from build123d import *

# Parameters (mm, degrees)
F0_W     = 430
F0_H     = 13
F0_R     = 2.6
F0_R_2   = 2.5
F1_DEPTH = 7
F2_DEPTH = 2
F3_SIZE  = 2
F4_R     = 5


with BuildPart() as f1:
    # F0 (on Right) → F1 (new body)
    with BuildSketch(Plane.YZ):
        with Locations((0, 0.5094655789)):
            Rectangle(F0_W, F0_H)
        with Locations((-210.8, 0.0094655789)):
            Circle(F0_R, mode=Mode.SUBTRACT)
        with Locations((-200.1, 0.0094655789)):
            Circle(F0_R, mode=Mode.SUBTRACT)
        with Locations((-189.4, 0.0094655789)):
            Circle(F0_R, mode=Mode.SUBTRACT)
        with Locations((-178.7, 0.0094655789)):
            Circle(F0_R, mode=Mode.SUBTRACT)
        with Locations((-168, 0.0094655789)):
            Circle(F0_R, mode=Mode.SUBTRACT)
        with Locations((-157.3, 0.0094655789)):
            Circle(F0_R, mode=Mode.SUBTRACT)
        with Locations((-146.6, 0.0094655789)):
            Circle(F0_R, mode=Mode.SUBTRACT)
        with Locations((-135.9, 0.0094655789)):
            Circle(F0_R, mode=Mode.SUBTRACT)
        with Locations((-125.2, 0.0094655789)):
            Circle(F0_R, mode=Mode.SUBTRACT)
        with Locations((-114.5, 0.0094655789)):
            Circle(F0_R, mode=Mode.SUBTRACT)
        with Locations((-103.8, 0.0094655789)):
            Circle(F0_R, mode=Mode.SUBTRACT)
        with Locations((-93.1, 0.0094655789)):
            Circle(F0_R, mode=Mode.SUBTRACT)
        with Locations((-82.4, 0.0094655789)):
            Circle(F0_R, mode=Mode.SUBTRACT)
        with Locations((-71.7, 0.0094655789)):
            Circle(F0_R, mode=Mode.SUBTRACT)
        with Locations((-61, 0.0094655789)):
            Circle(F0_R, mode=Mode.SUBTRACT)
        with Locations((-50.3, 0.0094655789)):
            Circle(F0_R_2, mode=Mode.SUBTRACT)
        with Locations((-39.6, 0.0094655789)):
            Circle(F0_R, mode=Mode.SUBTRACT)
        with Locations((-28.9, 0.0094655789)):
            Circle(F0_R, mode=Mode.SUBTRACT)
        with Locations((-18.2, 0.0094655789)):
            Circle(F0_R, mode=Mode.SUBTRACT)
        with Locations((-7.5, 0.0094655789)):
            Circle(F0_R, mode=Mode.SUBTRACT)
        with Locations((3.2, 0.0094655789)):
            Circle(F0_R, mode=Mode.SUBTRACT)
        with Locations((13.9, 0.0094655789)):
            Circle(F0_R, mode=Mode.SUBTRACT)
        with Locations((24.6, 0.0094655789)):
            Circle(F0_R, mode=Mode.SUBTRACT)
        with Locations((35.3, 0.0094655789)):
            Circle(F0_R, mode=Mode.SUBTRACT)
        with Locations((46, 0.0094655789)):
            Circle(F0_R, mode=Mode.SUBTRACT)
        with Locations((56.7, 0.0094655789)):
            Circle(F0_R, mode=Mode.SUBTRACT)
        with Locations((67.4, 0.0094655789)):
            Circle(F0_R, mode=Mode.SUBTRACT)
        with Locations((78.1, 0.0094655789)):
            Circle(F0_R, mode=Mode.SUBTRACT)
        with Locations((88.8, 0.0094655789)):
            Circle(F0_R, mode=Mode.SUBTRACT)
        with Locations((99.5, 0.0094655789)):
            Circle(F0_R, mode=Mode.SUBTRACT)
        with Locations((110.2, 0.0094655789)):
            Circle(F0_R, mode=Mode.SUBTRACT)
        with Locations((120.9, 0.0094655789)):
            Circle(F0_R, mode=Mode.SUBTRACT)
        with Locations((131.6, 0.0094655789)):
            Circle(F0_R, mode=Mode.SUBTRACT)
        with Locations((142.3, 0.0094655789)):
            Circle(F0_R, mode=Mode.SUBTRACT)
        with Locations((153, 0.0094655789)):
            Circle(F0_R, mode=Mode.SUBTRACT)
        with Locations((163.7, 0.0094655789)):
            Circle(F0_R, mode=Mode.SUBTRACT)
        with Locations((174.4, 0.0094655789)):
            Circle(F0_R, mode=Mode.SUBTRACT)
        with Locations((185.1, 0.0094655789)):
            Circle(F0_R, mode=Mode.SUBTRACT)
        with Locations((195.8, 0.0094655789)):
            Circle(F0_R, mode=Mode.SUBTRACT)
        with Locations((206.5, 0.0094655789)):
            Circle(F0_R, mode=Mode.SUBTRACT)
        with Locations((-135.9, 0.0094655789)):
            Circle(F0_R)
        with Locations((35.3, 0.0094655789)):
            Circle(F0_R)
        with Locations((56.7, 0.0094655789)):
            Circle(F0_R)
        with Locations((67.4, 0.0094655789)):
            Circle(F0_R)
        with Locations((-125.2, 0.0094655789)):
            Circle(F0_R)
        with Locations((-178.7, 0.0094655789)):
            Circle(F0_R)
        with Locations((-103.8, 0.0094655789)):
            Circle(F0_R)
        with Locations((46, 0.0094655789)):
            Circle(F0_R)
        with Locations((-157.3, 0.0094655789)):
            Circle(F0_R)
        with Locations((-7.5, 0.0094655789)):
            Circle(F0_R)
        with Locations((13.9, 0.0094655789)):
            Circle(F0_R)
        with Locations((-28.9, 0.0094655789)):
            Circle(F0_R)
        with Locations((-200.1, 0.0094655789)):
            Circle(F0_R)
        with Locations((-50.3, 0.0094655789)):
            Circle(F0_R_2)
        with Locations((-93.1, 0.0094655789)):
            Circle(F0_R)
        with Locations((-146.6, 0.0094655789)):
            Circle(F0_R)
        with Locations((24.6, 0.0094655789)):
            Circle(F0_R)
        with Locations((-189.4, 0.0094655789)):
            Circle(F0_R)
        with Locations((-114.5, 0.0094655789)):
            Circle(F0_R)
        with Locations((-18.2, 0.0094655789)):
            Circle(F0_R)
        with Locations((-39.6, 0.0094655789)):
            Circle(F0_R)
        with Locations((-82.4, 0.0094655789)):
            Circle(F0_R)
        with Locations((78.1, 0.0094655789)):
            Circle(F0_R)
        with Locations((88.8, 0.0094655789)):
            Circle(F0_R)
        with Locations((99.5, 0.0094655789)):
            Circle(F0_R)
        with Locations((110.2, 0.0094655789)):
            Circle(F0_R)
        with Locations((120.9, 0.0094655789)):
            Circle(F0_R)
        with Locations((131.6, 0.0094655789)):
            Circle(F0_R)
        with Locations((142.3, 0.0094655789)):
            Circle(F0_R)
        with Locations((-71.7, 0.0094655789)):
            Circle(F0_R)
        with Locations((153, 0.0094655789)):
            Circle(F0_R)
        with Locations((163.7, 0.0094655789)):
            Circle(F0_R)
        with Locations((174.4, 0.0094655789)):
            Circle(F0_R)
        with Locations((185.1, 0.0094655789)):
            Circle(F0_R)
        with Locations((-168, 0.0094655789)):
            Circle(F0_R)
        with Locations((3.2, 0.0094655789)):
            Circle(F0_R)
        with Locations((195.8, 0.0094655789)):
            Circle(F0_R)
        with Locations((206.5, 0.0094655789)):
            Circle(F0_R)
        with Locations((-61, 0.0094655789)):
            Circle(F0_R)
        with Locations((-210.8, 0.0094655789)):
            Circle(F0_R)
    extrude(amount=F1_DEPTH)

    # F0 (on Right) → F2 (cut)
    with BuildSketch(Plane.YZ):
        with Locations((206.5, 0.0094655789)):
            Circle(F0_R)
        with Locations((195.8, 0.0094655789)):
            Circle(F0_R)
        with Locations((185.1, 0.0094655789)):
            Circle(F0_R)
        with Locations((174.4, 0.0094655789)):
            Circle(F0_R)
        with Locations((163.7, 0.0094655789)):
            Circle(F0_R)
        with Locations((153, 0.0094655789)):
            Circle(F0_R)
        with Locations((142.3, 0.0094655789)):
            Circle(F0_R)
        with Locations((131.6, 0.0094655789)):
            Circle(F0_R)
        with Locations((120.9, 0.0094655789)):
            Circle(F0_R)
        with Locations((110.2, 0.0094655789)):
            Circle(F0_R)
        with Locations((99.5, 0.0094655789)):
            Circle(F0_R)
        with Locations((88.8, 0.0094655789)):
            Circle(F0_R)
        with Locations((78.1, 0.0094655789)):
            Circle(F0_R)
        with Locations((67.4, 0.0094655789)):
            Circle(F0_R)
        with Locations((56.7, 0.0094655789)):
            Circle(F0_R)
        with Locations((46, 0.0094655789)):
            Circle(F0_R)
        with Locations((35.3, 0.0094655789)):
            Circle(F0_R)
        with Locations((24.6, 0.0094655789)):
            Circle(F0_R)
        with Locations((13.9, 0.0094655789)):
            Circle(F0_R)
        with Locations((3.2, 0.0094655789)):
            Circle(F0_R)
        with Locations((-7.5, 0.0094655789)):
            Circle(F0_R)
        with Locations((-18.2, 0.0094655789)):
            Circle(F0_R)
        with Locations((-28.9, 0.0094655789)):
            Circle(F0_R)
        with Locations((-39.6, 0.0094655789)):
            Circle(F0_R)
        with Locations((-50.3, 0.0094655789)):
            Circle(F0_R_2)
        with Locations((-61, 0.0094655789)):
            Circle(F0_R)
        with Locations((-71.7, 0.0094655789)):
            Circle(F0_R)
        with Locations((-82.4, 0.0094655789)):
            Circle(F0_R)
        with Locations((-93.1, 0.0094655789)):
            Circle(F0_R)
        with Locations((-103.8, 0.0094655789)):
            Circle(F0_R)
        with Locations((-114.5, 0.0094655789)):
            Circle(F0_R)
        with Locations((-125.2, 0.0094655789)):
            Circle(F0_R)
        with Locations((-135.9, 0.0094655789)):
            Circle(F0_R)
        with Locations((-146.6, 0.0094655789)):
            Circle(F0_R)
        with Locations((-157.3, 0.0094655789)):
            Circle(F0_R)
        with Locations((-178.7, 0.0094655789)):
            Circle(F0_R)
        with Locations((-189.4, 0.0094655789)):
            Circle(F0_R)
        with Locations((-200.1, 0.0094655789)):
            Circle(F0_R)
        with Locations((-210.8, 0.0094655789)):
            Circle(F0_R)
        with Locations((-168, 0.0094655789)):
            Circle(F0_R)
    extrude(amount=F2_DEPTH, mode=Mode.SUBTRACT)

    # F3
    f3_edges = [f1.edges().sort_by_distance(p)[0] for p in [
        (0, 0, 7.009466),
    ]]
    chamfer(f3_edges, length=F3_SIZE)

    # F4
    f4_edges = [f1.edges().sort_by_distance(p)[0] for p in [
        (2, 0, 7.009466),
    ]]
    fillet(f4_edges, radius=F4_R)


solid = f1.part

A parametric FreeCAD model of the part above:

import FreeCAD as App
import Part
import Sketcher

V = App.Vector
Q = App.Units.Quantity


def edges_at(feature, points):
    """Names of the edges that pass closest to the given points."""
    edges = feature.Shape.Edges
    near = lambda p: min(range(len(edges)), key=lambda i: edges[i].distToShape(Part.Vertex(*p))[0])
    return sorted({f"Edge{near(p) + 1}" for p in points})

doc = App.newDocument("Part")
params = doc.addObject("Spreadsheet::Sheet", "Params")
for row, (alias, value) in enumerate([
    ("sketch1_width", "430 mm"),
    ("sketch1_height", "13 mm"),
    ("pad1_length", "7 mm"),
    ("sketch2_diameter", "5 mm"),
    ("sketch2_diameter2", "5.2 mm"),
    ("pocket1_length", "2 mm"),
    ("chamfer_size", "2 mm"),
    ("fillet_radius", "5 mm"),
], start=1):
    params.set(f"A{row}", alias)
    params.set(f"B{row}", "=" + value)
    params.setAlias(f"B{row}", alias)

body = doc.addObject("PartDesign::Body", "Body")

sketch1 = doc.addObject("Sketcher::SketchObject", "Sketch")
body.addObject(sketch1)
sketch1.AttachmentSupport = (doc.YZ_Plane, [""])
sketch1.MapMode = "FlatFace"
sketch1.addGeometry([
    Part.LineSegment(V(-215, 7.009466, 0), V(-215, -5.990534, 0)),
    Part.LineSegment(V(-215, -5.990534, 0), V(215, -5.990534, 0)),
    Part.LineSegment(V(215, -5.990534, 0), V(215, 7.009466, 0)),
    Part.LineSegment(V(215, 7.009466, 0), V(-215, 7.009466, 0)),
], False)
sketch1.addConstraint([
    Sketcher.Constraint("Coincident", 0, 2, 1, 1),
    Sketcher.Constraint("Coincident", 1, 2, 2, 1),
    Sketcher.Constraint("Coincident", 2, 2, 3, 1),
    Sketcher.Constraint("Coincident", 3, 2, 0, 1),
    Sketcher.Constraint("Vertical", 0),
    Sketcher.Constraint("Horizontal", 1),
    Sketcher.Constraint("Vertical", 2),
    Sketcher.Constraint("Horizontal", 3),
    Sketcher.Constraint("DistanceX", 1, 1, 1, 2, Q("430 mm")),
    Sketcher.Constraint("DistanceY", 0, 2, 0, 1, Q("13 mm")),
    Sketcher.Constraint("DistanceX", 0, 2, -1, 1, Q("215 mm")),
    Sketcher.Constraint("DistanceY", 0, 2, -1, 1, Q("5.990534 mm")),
])
sketch1.setExpression("Constraints[8]", "Params.sketch1_width")
sketch1.setExpression("Constraints[9]", "Params.sketch1_height")
pad1 = doc.addObject("PartDesign::Pad", "Pad")
body.addObject(pad1)
pad1.Profile = sketch1
pad1.setExpression("Length", "Params.pad1_length")

sketch2 = doc.addObject("Sketcher::SketchObject", "Sketch001")
body.addObject(sketch2)
sketch2.AttachmentSupport = (doc.YZ_Plane, [""])
sketch2.MapMode = "FlatFace"
sketch2.addGeometry([
    Part.Circle(V(206.5, 0.009466, 0), V(0, 0, 1), 2.6),
    Part.Circle(V(195.8, 0.009466, 0), V(0, 0, 1), 2.6),
    Part.Circle(V(185.1, 0.009466, 0), V(0, 0, 1), 2.6),
    Part.Circle(V(174.4, 0.009466, 0), V(0, 0, 1), 2.6),
    Part.Circle(V(163.7, 0.009466, 0), V(0, 0, 1), 2.6),
    Part.Circle(V(153, 0.009466, 0), V(0, 0, 1), 2.6),
    Part.Circle(V(142.3, 0.009466, 0), V(0, 0, 1), 2.6),
    Part.Circle(V(131.6, 0.009466, 0), V(0, 0, 1), 2.6),
    Part.Circle(V(120.9, 0.009466, 0), V(0, 0, 1), 2.6),
    Part.Circle(V(110.2, 0.009466, 0), V(0, 0, 1), 2.6),
    Part.Circle(V(99.5, 0.009466, 0), V(0, 0, 1), 2.6),
    Part.Circle(V(88.8, 0.009466, 0), V(0, 0, 1), 2.6),
    Part.Circle(V(78.1, 0.009466, 0), V(0, 0, 1), 2.6),
    Part.Circle(V(67.4, 0.009466, 0), V(0, 0, 1), 2.6),
    Part.Circle(V(56.7, 0.009466, 0), V(0, 0, 1), 2.6),
    Part.Circle(V(46, 0.009466, 0), V(0, 0, 1), 2.6),
    Part.Circle(V(35.3, 0.009466, 0), V(0, 0, 1), 2.6),
    Part.Circle(V(24.6, 0.009466, 0), V(0, 0, 1), 2.6),
    Part.Circle(V(13.9, 0.009466, 0), V(0, 0, 1), 2.6),
    Part.Circle(V(3.2, 0.009466, 0), V(0, 0, 1), 2.6),
    Part.Circle(V(-7.5, 0.009466, 0), V(0, 0, 1), 2.6),
    Part.Circle(V(-18.2, 0.009466, 0), V(0, 0, 1), 2.6),
    Part.Circle(V(-28.9, 0.009466, 0), V(0, 0, 1), 2.6),
    Part.Circle(V(-39.6, 0.009466, 0), V(0, 0, 1), 2.6),
    Part.Circle(V(-50.3, 0.009466, 0), V(0, 0, 1), 2.5),
    Part.Circle(V(-61, 0.009466, 0), V(0, 0, 1), 2.6),
    Part.Circle(V(-71.7, 0.009466, 0), V(0, 0, 1), 2.6),
    Part.Circle(V(-82.4, 0.009466, 0), V(0, 0, 1), 2.6),
    Part.Circle(V(-93.1, 0.009466, 0), V(0, 0, 1), 2.6),
    Part.Circle(V(-103.8, 0.009466, 0), V(0, 0, 1), 2.6),
    Part.Circle(V(-114.5, 0.009466, 0), V(0, 0, 1), 2.6),
    Part.Circle(V(-125.2, 0.009466, 0), V(0, 0, 1), 2.6),
    Part.Circle(V(-135.9, 0.009466, 0), V(0, 0, 1), 2.6),
    Part.Circle(V(-146.6, 0.009466, 0), V(0, 0, 1), 2.6),
    Part.Circle(V(-157.3, 0.009466, 0), V(0, 0, 1), 2.6),
    Part.Circle(V(-178.7, 0.009466, 0), V(0, 0, 1), 2.6),
    Part.Circle(V(-189.4, 0.009466, 0), V(0, 0, 1), 2.6),
    Part.Circle(V(-200.1, 0.009466, 0), V(0, 0, 1), 2.6),
    Part.Circle(V(-210.8, 0.009466, 0), V(0, 0, 1), 2.6),
    Part.Circle(V(-168, 0.009466, 0), V(0, 0, 1), 2.6),
], False)
sketch2.addConstraint([
    Sketcher.Constraint("Equal", 0, 1),
    Sketcher.Constraint("Equal", 1, 2),
    Sketcher.Constraint("Equal", 2, 3),
    Sketcher.Constraint("Equal", 3, 4),
    Sketcher.Constraint("Equal", 4, 5),
    Sketcher.Constraint("Equal", 5, 6),
    Sketcher.Constraint("Equal", 6, 7),
    Sketcher.Constraint("Equal", 7, 8),
    Sketcher.Constraint("Equal", 8, 9),
    Sketcher.Constraint("Equal", 9, 10),
    Sketcher.Constraint("Equal", 10, 11),
    Sketcher.Constraint("Equal", 11, 12),
    Sketcher.Constraint("Equal", 12, 13),
    Sketcher.Constraint("Equal", 13, 14),
    Sketcher.Constraint("Equal", 14, 15),
    Sketcher.Constraint("Equal", 15, 16),
    Sketcher.Constraint("Equal", 16, 17),
    Sketcher.Constraint("Equal", 17, 18),
    Sketcher.Constraint("Equal", 18, 19),
    Sketcher.Constraint("Equal", 19, 20),
    Sketcher.Constraint("Equal", 20, 21),
    Sketcher.Constraint("Equal", 21, 22),
    Sketcher.Constraint("Equal", 22, 23),
    Sketcher.Constraint("Equal", 23, 25),
    Sketcher.Constraint("Equal", 25, 26),
    Sketcher.Constraint("Equal", 26, 27),
    Sketcher.Constraint("Equal", 27, 28),
    Sketcher.Constraint("Equal", 28, 29),
    Sketcher.Constraint("Equal", 29, 30),
    Sketcher.Constraint("Equal", 30, 31),
    Sketcher.Constraint("Equal", 31, 32),
    Sketcher.Constraint("Equal", 32, 33),
    Sketcher.Constraint("Equal", 33, 34),
    Sketcher.Constraint("Equal", 34, 35),
    Sketcher.Constraint("Equal", 35, 36),
    Sketcher.Constraint("Equal", 36, 37),
    Sketcher.Constraint("Equal", 37, 38),
    Sketcher.Constraint("Equal", 38, 39),
    Sketcher.Constraint("Horizontal", 0, 3, 1, 3),
    Sketcher.Constraint("Horizontal", 1, 3, 2, 3),
    Sketcher.Constraint("Horizontal", 2, 3, 3, 3),
    Sketcher.Constraint("Horizontal", 3, 3, 4, 3),
    Sketcher.Constraint("Horizontal", 4, 3, 5, 3),
    Sketcher.Constraint("Horizontal", 5, 3, 6, 3),
    Sketcher.Constraint("Horizontal", 6, 3, 7, 3),
    Sketcher.Constraint("Horizontal", 7, 3, 8, 3),
    Sketcher.Constraint("Horizontal", 8, 3, 9, 3),
    Sketcher.Constraint("Horizontal", 9, 3, 10, 3),
    Sketcher.Constraint("Horizontal", 10, 3, 11, 3),
    Sketcher.Constraint("Horizontal", 11, 3, 12, 3),
    Sketcher.Constraint("Horizontal", 12, 3, 13, 3),
    Sketcher.Constraint("Horizontal", 13, 3, 14, 3),
    Sketcher.Constraint("Horizontal", 14, 3, 15, 3),
    Sketcher.Constraint("Horizontal", 15, 3, 16, 3),
    Sketcher.Constraint("Horizontal", 16, 3, 17, 3),
    Sketcher.Constraint("Horizontal", 17, 3, 18, 3),
    Sketcher.Constraint("Horizontal", 18, 3, 19, 3),
    Sketcher.Constraint("Horizontal", 19, 3, 20, 3),
    Sketcher.Constraint("Horizontal", 20, 3, 21, 3),
    Sketcher.Constraint("Horizontal", 21, 3, 22, 3),
    Sketcher.Constraint("Horizontal", 22, 3, 23, 3),
    Sketcher.Constraint("Horizontal", 23, 3, 24, 3),
    Sketcher.Constraint("Horizontal", 24, 3, 25, 3),
    Sketcher.Constraint("Horizontal", 25, 3, 26, 3),
    Sketcher.Constraint("Horizontal", 26, 3, 27, 3),
    Sketcher.Constraint("Horizontal", 27, 3, 28, 3),
    Sketcher.Constraint("Horizontal", 28, 3, 29, 3),
    Sketcher.Constraint("Horizontal", 29, 3, 30, 3),
    Sketcher.Constraint("Horizontal", 30, 3, 31, 3),
    Sketcher.Constraint("Horizontal", 31, 3, 32, 3),
    Sketcher.Constraint("Horizontal", 32, 3, 33, 3),
    Sketcher.Constraint("Horizontal", 33, 3, 34, 3),
    Sketcher.Constraint("Horizontal", 34, 3, 35, 3),
    Sketcher.Constraint("Horizontal", 35, 3, 36, 3),
    Sketcher.Constraint("Horizontal", 36, 3, 37, 3),
    Sketcher.Constraint("Horizontal", 37, 3, 38, 3),
    Sketcher.Constraint("Horizontal", 38, 3, 39, 3),
    Sketcher.Constraint("Diameter", 24, Q("5 mm")),
    Sketcher.Constraint("Diameter", 0, Q("5.2 mm")),
    Sketcher.Constraint("DistanceX", -1, 1, 5, 3, Q("153 mm")),
    Sketcher.Constraint("DistanceX", -1, 1, 15, 3, Q("46 mm")),
    Sketcher.Constraint("DistanceX", 25, 3, -1, 1, Q("61 mm")),
    Sketcher.Constraint("DistanceX", 39, 3, -1, 1, Q("168 mm")),
    Sketcher.Constraint("DistanceX", -1, 1, 0, 3, Q("206.5 mm")),
    Sketcher.Constraint("DistanceX", -1, 1, 1, 3, Q("195.8 mm")),
    Sketcher.Constraint("DistanceX", -1, 1, 2, 3, Q("185.1 mm")),
    Sketcher.Constraint("DistanceX", -1, 1, 3, 3, Q("174.4 mm")),
    Sketcher.Constraint("DistanceX", -1, 1, 4, 3, Q("163.7 mm")),
    Sketcher.Constraint("DistanceX", -1, 1, 6, 3, Q("142.3 mm")),
    Sketcher.Constraint("DistanceX", -1, 1, 7, 3, Q("131.6 mm")),
    Sketcher.Constraint("DistanceX", -1, 1, 8, 3, Q("120.9 mm")),
    Sketcher.Constraint("DistanceX", -1, 1, 9, 3, Q("110.2 mm")),
    Sketcher.Constraint("DistanceX", -1, 1, 10, 3, Q("99.5 mm")),
    Sketcher.Constraint("DistanceX", -1, 1, 11, 3, Q("88.8 mm")),
    Sketcher.Constraint("DistanceX", -1, 1, 12, 3, Q("78.1 mm")),
    Sketcher.Constraint("DistanceX", -1, 1, 13, 3, Q("67.4 mm")),
    Sketcher.Constraint("DistanceX", -1, 1, 14, 3, Q("56.7 mm")),
    Sketcher.Constraint("DistanceX", -1, 1, 16, 3, Q("35.3 mm")),
    Sketcher.Constraint("DistanceX", -1, 1, 17, 3, Q("24.6 mm")),
    Sketcher.Constraint("DistanceX", -1, 1, 18, 3, Q("13.9 mm")),
    Sketcher.Constraint("DistanceX", -1, 1, 19, 3, Q("3.2 mm")),
    Sketcher.Constraint("DistanceX", 20, 3, -1, 1, Q("7.5 mm")),
    Sketcher.Constraint("DistanceX", 21, 3, -1, 1, Q("18.2 mm")),
    Sketcher.Constraint("DistanceX", 22, 3, -1, 1, Q("28.9 mm")),
    Sketcher.Constraint("DistanceX", 23, 3, -1, 1, Q("39.6 mm")),
    Sketcher.Constraint("DistanceX", 24, 3, -1, 1, Q("50.3 mm")),
    Sketcher.Constraint("DistanceX", 26, 3, -1, 1, Q("71.7 mm")),
    Sketcher.Constraint("DistanceX", 27, 3, -1, 1, Q("82.4 mm")),
    Sketcher.Constraint("DistanceX", 28, 3, -1, 1, Q("93.1 mm")),
    Sketcher.Constraint("DistanceX", 29, 3, -1, 1, Q("103.8 mm")),
    Sketcher.Constraint("DistanceX", 30, 3, -1, 1, Q("114.5 mm")),
    Sketcher.Constraint("DistanceX", 31, 3, -1, 1, Q("125.2 mm")),
    Sketcher.Constraint("DistanceX", 32, 3, -1, 1, Q("135.9 mm")),
    Sketcher.Constraint("DistanceX", 33, 3, -1, 1, Q("146.6 mm")),
    Sketcher.Constraint("DistanceX", 34, 3, -1, 1, Q("157.3 mm")),
    Sketcher.Constraint("DistanceX", 35, 3, -1, 1, Q("178.7 mm")),
    Sketcher.Constraint("DistanceX", 36, 3, -1, 1, Q("189.4 mm")),
    Sketcher.Constraint("DistanceX", 37, 3, -1, 1, Q("200.1 mm")),
    Sketcher.Constraint("DistanceX", 38, 3, -1, 1, Q("210.8 mm")),
    Sketcher.Constraint("DistanceY", -1, 1, 0, 3, Q("0.009466 mm")),
])
sketch2.setExpression("Constraints[77]", "Params.sketch2_diameter")
sketch2.setExpression("Constraints[78]", "Params.sketch2_diameter2")
pocket1 = doc.addObject("PartDesign::Pocket", "Pocket")
body.addObject(pocket1)
pocket1.Profile = sketch2
pocket1.setExpression("Length", "Params.pocket1_length")
pocket1.Reversed = True
doc.recompute()

chamfer = doc.addObject("PartDesign::Chamfer", "Chamfer")
body.addObject(chamfer)
chamfer.Base = (pocket1, edges_at(pocket1, [(0, 0, 7.009)]))
chamfer.setExpression("Size", "Params.chamfer_size")
doc.recompute()

fillet = doc.addObject("PartDesign::Fillet", "Fillet")
body.addObject(fillet)
fillet.Base = (chamfer, edges_at(chamfer, [(2, 0, 7.009)]))
fillet.setExpression("Radius", "Params.fillet_radius")

doc.recompute()
